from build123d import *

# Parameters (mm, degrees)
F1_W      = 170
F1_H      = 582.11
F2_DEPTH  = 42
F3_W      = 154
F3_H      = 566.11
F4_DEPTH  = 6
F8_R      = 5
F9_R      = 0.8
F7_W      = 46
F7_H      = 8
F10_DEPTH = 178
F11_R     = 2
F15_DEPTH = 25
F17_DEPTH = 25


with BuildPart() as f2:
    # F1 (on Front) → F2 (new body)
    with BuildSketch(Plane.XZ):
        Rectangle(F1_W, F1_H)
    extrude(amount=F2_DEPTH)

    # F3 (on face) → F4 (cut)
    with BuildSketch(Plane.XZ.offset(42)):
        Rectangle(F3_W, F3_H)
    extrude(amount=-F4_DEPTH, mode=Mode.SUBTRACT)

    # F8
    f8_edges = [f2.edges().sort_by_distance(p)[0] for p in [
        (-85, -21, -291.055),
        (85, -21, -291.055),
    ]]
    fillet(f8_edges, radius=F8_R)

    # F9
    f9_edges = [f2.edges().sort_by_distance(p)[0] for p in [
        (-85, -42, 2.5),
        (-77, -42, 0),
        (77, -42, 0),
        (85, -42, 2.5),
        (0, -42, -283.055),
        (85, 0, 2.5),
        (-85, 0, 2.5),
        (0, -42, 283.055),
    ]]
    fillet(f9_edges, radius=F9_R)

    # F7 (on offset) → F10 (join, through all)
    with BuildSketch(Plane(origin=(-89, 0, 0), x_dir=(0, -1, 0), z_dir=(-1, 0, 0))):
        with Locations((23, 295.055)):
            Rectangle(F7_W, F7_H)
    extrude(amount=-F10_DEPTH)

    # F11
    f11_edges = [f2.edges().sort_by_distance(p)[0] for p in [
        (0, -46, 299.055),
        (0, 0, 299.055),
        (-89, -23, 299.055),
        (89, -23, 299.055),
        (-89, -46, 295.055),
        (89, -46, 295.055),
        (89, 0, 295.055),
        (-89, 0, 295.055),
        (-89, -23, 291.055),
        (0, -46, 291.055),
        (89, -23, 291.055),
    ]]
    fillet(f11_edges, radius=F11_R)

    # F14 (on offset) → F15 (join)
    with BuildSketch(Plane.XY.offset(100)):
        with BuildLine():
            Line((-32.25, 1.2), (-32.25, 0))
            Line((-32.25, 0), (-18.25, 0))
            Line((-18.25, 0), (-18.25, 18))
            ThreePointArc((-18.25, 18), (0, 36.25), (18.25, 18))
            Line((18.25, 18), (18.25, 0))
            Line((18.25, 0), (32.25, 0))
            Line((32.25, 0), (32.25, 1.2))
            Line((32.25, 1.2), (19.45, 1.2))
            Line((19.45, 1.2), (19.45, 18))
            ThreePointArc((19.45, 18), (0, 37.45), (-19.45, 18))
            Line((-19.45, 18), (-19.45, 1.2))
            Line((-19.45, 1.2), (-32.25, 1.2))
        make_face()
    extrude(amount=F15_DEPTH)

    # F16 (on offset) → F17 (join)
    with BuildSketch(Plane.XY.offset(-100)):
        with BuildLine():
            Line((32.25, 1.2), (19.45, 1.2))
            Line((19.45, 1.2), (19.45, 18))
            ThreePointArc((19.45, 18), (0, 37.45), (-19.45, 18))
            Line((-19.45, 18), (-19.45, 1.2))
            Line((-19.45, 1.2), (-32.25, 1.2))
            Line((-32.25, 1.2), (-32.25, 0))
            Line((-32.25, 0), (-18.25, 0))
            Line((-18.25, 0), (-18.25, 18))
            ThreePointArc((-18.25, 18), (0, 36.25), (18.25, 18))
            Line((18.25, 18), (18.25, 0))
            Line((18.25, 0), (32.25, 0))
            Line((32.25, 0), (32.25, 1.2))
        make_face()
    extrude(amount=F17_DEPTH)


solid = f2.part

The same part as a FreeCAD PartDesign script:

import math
import FreeCAD as App
import Part
import Sketcher
from FreeCAD import Vector
Q = App.Units.Quantity


def edges_at(feature, points):
    """Names of the edges that pass closest to the given points."""
    edges = feature.Shape.Edges
    near = lambda p: min(range(len(edges)), key=lambda i: edges[i].distToShape(Part.Vertex(*p))[0])
    return sorted({f"Edge{near(p) + 1}" for p in points})

doc = App.newDocument("Part")
params = doc.addObject("Spreadsheet::Sheet", "Params")
for row, (alias, value) in enumerate([
    ("sketch1_width", "170 mm"),
    ("sketch1_height", "582.11 mm"),
    ("pad1_length", "42 mm"),
    ("sketch2_width", "154 mm"),
    ("sketch2_height", "566.11 mm"),
    ("pocket1_length", "6 mm"),
    ("fillet_radius", "5 mm"),
    ("fillet2_radius", "0.8 mm"),
    ("sketch3_width", "46 mm"),
    ("sketch3_height", "8 mm"),
    ("pad2_length", "178 mm"),
    ("fillet3_radius", "2 mm"),
    ("sketch4_width", "14 mm"),
    ("sketch4_height", "18 mm"),
    ("sketch4_radius", "18.25 mm"),
    ("sketch4_radius2", "19.45 mm"),
    ("sketch4_height2", "1.2 mm"),
    ("pad3_length", "25 mm"),
    ("sketch5_width", "14 mm"),
    ("sketch5_height", "18 mm"),
    ("sketch5_radius", "19.45 mm"),
    ("sketch5_radius2", "18.25 mm"),
    ("sketch5_height2", "16.8 mm"),
    ("pad4_length", "25 mm"),
], start=1):
    params.set(f"A{row}", alias)
    params.set(f"B{row}", "=" + value)
    params.setAlias(f"B{row}", alias)

body = doc.addObject("PartDesign::Body", "Body")

# Sketch on XZ plane
sketch1 = doc.addObject("Sketcher::SketchObject", "Sketch")
body.addObject(sketch1)
sketch1.AttachmentSupport = (doc.XZ_Plane, [""])
sketch1.MapMode = "FlatFace"
sketch1.addGeometry([
    Part.LineSegment(Vector(-85, 291, 0), Vector(-85, -291, 0)),
    Part.LineSegment(Vector(-85, -291, 0), Vector(85, -291, 0)),
    Part.LineSegment(Vector(85, -291, 0), Vector(85, 291, 0)),
    Part.LineSegment(Vector(85, 291, 0), Vector(-85, 291, 0)),
], False)
sketch1.addConstraint([
    Sketcher.Constraint("Coincident", 0, 2, 1, 1),
    Sketcher.Constraint("Coincident", 1, 2, 2, 1),
    Sketcher.Constraint("Coincident", 2, 2, 3, 1),
    Sketcher.Constraint("Coincident", 3, 2, 0, 1),
    Sketcher.Constraint("Vertical", 0),
    Sketcher.Constraint("Horizontal", 1),
    Sketcher.Constraint("Vertical", 2),
    Sketcher.Constraint("Horizontal", 3),
    Sketcher.Constraint("Symmetric", 0, 2, 2, 2, -1, 1),
    Sketcher.Constraint("DistanceX", 1, 1, 1, 2, Q("170 mm")),
    Sketcher.Constraint("DistanceY", 0, 2, 0, 1, Q("582.11 mm")),
])
sketch1.setExpression("Constraints[9]", "Params.sketch1_width")
sketch1.setExpression("Constraints[10]", "Params.sketch1_height")
pad1 = doc.addObject("PartDesign::Pad", "Pad")
body.addObject(pad1)
pad1.Profile = sketch1
pad1.setExpression("Length", "Params.pad1_length")

# Sketch on XZ plane
sketch2 = doc.addObject("Sketcher::SketchObject", "Sketch001")
body.addObject(sketch2)
sketch2.AttachmentSupport = (doc.XZ_Plane, [""])
sketch2.MapMode = "FlatFace"
sketch2.AttachmentOffset = App.Placement(Vector(0, 0, 42), App.Rotation())
sketch2.addGeometry([
    Part.LineSegment(Vector(-77, 283, 0), Vector(-77, -283, 0)),
    Part.LineSegment(Vector(-77, -283, 0), Vector(77, -283, 0)),
    Part.LineSegment(Vector(77, -283, 0), Vector(77, 283, 0)),
    Part.LineSegment(Vector(77, 283, 0), Vector(-77, 283, 0)),
], False)
sketch2.addConstraint([
    Sketcher.Constraint("Coincident", 0, 2, 1, 1),
    Sketcher.Constraint("Coincident", 1, 2, 2, 1),
    Sketcher.Constraint("Coincident", 2, 2, 3, 1),
    Sketcher.Constraint("Coincident", 3, 2, 0, 1),
    Sketcher.Constraint("Vertical", 0),
    Sketcher.Constraint("Horizontal", 1),
    Sketcher.Constraint("Vertical", 2),
    Sketcher.Constraint("Horizontal", 3),
    Sketcher.Constraint("Symmetric", 0, 2, 2, 2, -1, 1),
    Sketcher.Constraint("DistanceX", 1, 1, 1, 2, Q("154 mm")),
    Sketcher.Constraint("DistanceY", 0, 2, 0, 1, Q("566.11 mm")),
])
sketch2.setExpression("Constraints[9]", "Params.sketch2_width")
sketch2.setExpression("Constraints[10]", "Params.sketch2_height")
pocket1 = doc.addObject("PartDesign::Pocket", "Pocket")
body.addObject(pocket1)
pocket1.Profile = sketch2
pocket1.setExpression("Length", "Params.pocket1_length")
doc.recompute()

fillet = doc.addObject("PartDesign::Fillet", "Fillet")
body.addObject(fillet)
fillet.Base = (pocket1, edges_at(pocket1, [(-85, -21, -291.055), (85, -21, -291.055)]))
fillet.setExpression("Radius", "Params.fillet_radius")
doc.recompute()

fillet2 = doc.addObject("PartDesign::Fillet", "Fillet001")
body.addObject(fillet2)
fillet2.Base = (fillet, edges_at(fillet, [
    (-85, -42, 2.5),
    (-77, -42, 0),
    (77, -42, 0),
    (85, -42, 2.5),
    (0, -42, -283.055),
    (85, 0, 2.5),
    (-85, 0, 2.5),
    (0, -42, 283.055),
]))
fillet2.setExpression("Radius", "Params.fillet2_radius")

# Sketch on YZ plane
sketch3 = doc.addObject("Sketcher::SketchObject", "Sketch002")
body.addObject(sketch3)
sketch3.AttachmentSupport = (doc.YZ_Plane, [""])
sketch3.MapMode = "FlatFace"
sketch3.AttachmentOffset = App.Placement(Vector(0, 0, -89), App.Rotation())
sketch3.addGeometry([
    Part.LineSegment(Vector(0, 299, 0), Vector(0, 291, 0)),
    Part.LineSegment(Vector(0, 291, 0), Vector(-46, 291, 0)),
    Part.LineSegment(Vector(-46, 291, 0), Vector(-46, 299, 0)),
    Part.LineSegment(Vector(-46, 299, 0), Vector(0, 299, 0)),
], False)
sketch3.addConstraint([
    Sketcher.Constraint("Coincident", 0, 2, 1, 1),
    Sketcher.Constraint("Coincident", 1, 2, 2, 1),
    Sketcher.Constraint("Coincident", 2, 2, 3, 1),
    Sketcher.Constraint("Coincident", 3, 2, 0, 1),
    Sketcher.Constraint("Vertical", 0),
    Sketcher.Constraint("Horizontal", 1),
    Sketcher.Constraint("Vertical", 2),
    Sketcher.Constraint("Horizontal", 3),
    Sketcher.Constraint("PointOnObject", 0, 2, -2),
    Sketcher.Constraint("DistanceX", 1, 2, 1, 1, Q("46 mm")),
    Sketcher.Constraint("DistanceY", 0, 2, 0, 1, Q("8 mm")),
    Sketcher.Constraint("DistanceY", -1, 1, 0, 2, Q("291.055 mm")),
])
sketch3.setExpression("Constraints[9]", "Params.sketch3_width")
sketch3.setExpression("Constraints[10]", "Params.sketch3_height")
pad2 = doc.addObject("PartDesign::Pad", "Pad001")
body.addObject(pad2)
pad2.Profile = sketch3
pad2.setExpression("Length", "Params.pad2_length")
doc.recompute()

fillet3 = doc.addObject("PartDesign::Fillet", "Fillet002")
body.addObject(fillet3)
fillet3.Base = (pad2, edges_at(pad2, [
    (0, -46, 299.055),
    (0, 0, 299.055),
    (-89, -23, 299.055),
    (89, -23, 299.055),
    (-89, -46, 295.055),
    (89, -46, 295.055),
    (89, 0, 295.055),
    (-89, 0, 295.055),
    (-89, -23, 291.055),
    (0, -46, 291.055),
    (89, -23, 291.055),
]))
fillet3.setExpression("Radius", "Params.fillet3_radius")

# Sketch on XY plane
sketch4 = doc.addObject("Sketcher::SketchObject", "Sketch003")
body.addObject(sketch4)
sketch4.AttachmentSupport = (doc.XY_Plane, [""])
sketch4.MapMode = "FlatFace"
sketch4.AttachmentOffset = App.Placement(Vector(0, 0, 100), App.Rotation())
sketch4.addGeometry([
    Part.LineSegment(Vector(-32.2, 1.2, 0), Vector(-32.2, 0, 0)),  # 0
    Part.LineSegment(Vector(-32.2, 0, 0), Vector(-18.2, 0, 0)),  # 1
    Part.LineSegment(Vector(-18.2, 0, 0), Vector(-18.2, 18, 0)),  # 2
    Part.ArcOfCircle(Part.Circle(Vector(0, 18, 0), Vector(0, 0, 1), 18.2), math.radians(0), math.radians(180)),  # 3
    Part.LineSegment(Vector(18.2, 18, 0), Vector(18.2, 0, 0)),  # 4
    Part.LineSegment(Vector(18.2, 0, 0), Vector(32.2, 0, 0)),  # 5
    Part.LineSegment(Vector(32.2, 0, 0), Vector(32.2, 1.2, 0)),  # 6
    Part.LineSegment(Vector(32.2, 1.2, 0), Vector(19.4, 1.2, 0)),  # 7
    Part.LineSegment(Vector(19.4, 1.2, 0), Vector(19.4, 18, 0)),  # 8
    Part.ArcOfCircle(Part.Circle(Vector(0, 18, 0), Vector(0, 0, 1), 19.4), math.radians(0), math.radians(180)),  # 9
    Part.LineSegment(Vector(-19.4, 18, 0), Vector(-19.4, 1.2, 0)),  # 10
    Part.LineSegment(Vector(-19.4, 1.2, 0), Vector(-32.2, 1.2, 0)),  # 11
], False)
sketch4.addConstraint([
    Sketcher.Constraint("Coincident", 0, 2, 1, 1),
    Sketcher.Constraint("Coincident", 1, 2, 2, 1),
    Sketcher.Constraint("Tangent", 2, 2, 3, 2),
    Sketcher.Constraint("Tangent", 3, 1, 4, 1),
    Sketcher.Constraint("Coincident", 4, 2, 5, 1),
    Sketcher.Constraint("Coincident", 5, 2, 6, 1),
    Sketcher.Constraint("Coincident", 6, 2, 7, 1),
    Sketcher.Constraint("Coincident", 7, 2, 8, 1),
    Sketcher.Constraint("Tangent", 8, 2, 9, 1),
    Sketcher.Constraint("Tangent", 9, 2, 10, 1),
    Sketcher.Constraint("Coincident", 10, 2, 11, 1),
    Sketcher.Constraint("Coincident", 11, 2, 0, 1),
    Sketcher.Constraint("Vertical", 0),
    Sketcher.Constraint("Horizontal", 1),
    Sketcher.Constraint("Vertical", 2),
    Sketcher.Constraint("Vertical", 4),
    Sketcher.Constraint("Horizontal", 5),
    Sketcher.Constraint("Vertical", 6),
    Sketcher.Constraint("Horizontal", 7),
    Sketcher.Constraint("Vertical", 8),
    Sketcher.Constraint("Vertical", 10),
    Sketcher.Constraint("Horizontal", 11),
    Sketcher.Constraint("Coincident", 9, 3, 3, 3),
    Sketcher.Constraint("Symmetric", 1, 2, 4, 2, -1, 1),
    Sketcher.Constraint("Symmetric", 0, 2, 5, 2, -2),
    Sketcher.Constraint("Horizontal", 7, 2, 10, 2),
    Sketcher.Constraint("DistanceX", 1, 1, 1, 2, Q("14 mm")),
    Sketcher.Constraint("DistanceY", 2, 1, 2, 2, Q("18 mm")),
    Sketcher.Constraint("Radius", 3, Q("18.25 mm")),
    Sketcher.Constraint("Radius", 9, Q("19.45 mm")),
    Sketcher.Constraint("DistanceY", 0, 2, 0, 1, Q("1.2 mm")),
])
sketch4.setExpression("Constraints[26]", "Params.sketch4_width")
sketch4.setExpression("Constraints[27]", "Params.sketch4_height")
sketch4.setExpression("Constraints[28]", "Params.sketch4_radius")
sketch4.setExpression("Constraints[29]", "Params.sketch4_radius2")
sketch4.setExpression("Constraints[30]", "Params.sketch4_height2")
pad3 = doc.addObject("PartDesign::Pad", "Pad002")
body.addObject(pad3)
pad3.Profile = sketch4
pad3.setExpression("Length", "Params.pad3_length")

# Sketch on XY plane
sketch5 = doc.addObject("Sketcher::SketchObject", "Sketch004")
body.addObject(sketch5)
sketch5.AttachmentSupport = (doc.XY_Plane, [""])
sketch5.MapMode = "FlatFace"
sketch5.AttachmentOffset = App.Placement(Vector(0, 0, -100), App.Rotation())
sketch5.addGeometry([
    Part.LineSegment(Vector(32.2, 1.2, 0), Vector(19.4, 1.2, 0)),  # 0
    Part.LineSegment(Vector(19.4, 1.2, 0), Vector(19.4, 18, 0)),  # 1
    Part.ArcOfCircle(Part.Circle(Vector(0, 18, 0), Vector(0, 0, 1), 19.4), math.radians(0), math.radians(180)),  # 2
    Part.LineSegment(Vector(-19.4, 18, 0), Vector(-19.4, 1.2, 0)),  # 3
    Part.LineSegment(Vector(-19.4, 1.2, 0), Vector(-32.2, 1.2, 0)),  # 4
    Part.LineSegment(Vector(-32.2, 1.2, 0), Vector(-32.2, 0, 0)),  # 5
    Part.LineSegment(Vector(-32.2, 0, 0), Vector(-18.2, 0, 0)),  # 6
    Part.LineSegment(Vector(-18.2, 0, 0), Vector(-18.2, 18, 0)),  # 7
    Part.ArcOfCircle(Part.Circle(Vector(0, 18, 0), Vector(0, 0, 1), 18.2), math.radians(0), math.radians(180)),  # 8
    Part.LineSegment(Vector(18.2, 18, 0), Vector(18.2, 0, 0)),  # 9
    Part.LineSegment(Vector(18.2, 0, 0), Vector(32.2, 0, 0)),  # 10
    Part.LineSegment(Vector(32.2, 0, 0), Vector(32.2, 1.2, 0)),  # 11
], False)
sketch5.addConstraint([
    Sketcher.Constraint("Coincident", 0, 2, 1, 1),
    Sketcher.Constraint("Tangent", 1, 2, 2, 1),
    Sketcher.Constraint("Tangent", 2, 2, 3, 1),
    Sketcher.Constraint("Coincident", 3, 2, 4, 1),
    Sketcher.Constraint("Coincident", 4, 2, 5, 1),
    Sketcher.Constraint("Coincident", 5, 2, 6, 1),
    Sketcher.Constraint("Coincident", 6, 2, 7, 1),
    Sketcher.Constraint("Tangent", 7, 2, 8, 2),
    Sketcher.Constraint("Tangent", 8, 1, 9, 1),
    Sketcher.Constraint("Coincident", 9, 2, 10, 1),
    Sketcher.Constraint("Coincident", 10, 2, 11, 1),
    Sketcher.Constraint("Coincident", 11, 2, 0, 1),
    Sketcher.Constraint("Horizontal", 0),
    Sketcher.Constraint("Vertical", 1),
    Sketcher.Constraint("Vertical", 3),
    Sketcher.Constraint("Horizontal", 4),
    Sketcher.Constraint("Vertical", 5),
    Sketcher.Constraint("Horizontal", 6),
    Sketcher.Constraint("Vertical", 7),
    Sketcher.Constraint("Vertical", 9),
    Sketcher.Constraint("Horizontal", 10),
    Sketcher.Constraint("Vertical", 11),
    Sketcher.Constraint("Coincident", 8, 3, 2, 3),
    Sketcher.Constraint("Symmetric", 6, 2, 9, 2, -1, 1),
    Sketcher.Constraint("Symmetric", 5, 2, 10, 2, -2),
    Sketcher.Constraint("Horizontal", 0, 2, 3, 2),
    Sketcher.Constraint("DistanceX", 6, 1, 6, 2, Q("14 mm")),
    Sketcher.Constraint("DistanceY", 7, 1, 7, 2, Q("18 mm")),
    Sketcher.Constraint("Radius", 2, Q("19.45 mm")),
    Sketcher.Constraint("Radius", 8, Q("18.25 mm")),
    Sketcher.Constraint("DistanceY", 1, 1, 1, 2, Q("16.8 mm")),
])
sketch5.setExpression("Constraints[26]", "Params.sketch5_width")
sketch5.setExpression("Constraints[27]", "Params.sketch5_height")
sketch5.setExpression("Constraints[28]", "Params.sketch5_radius")
sketch5.setExpression("Constraints[29]", "Params.sketch5_radius2")
sketch5.setExpression("Constraints[30]", "Params.sketch5_height2")
pad4 = doc.addObject("PartDesign::Pad", "Pad003")
body.addObject(pad4)
pad4.Profile = sketch5
pad4.setExpression("Length", "Params.pad4_length")

doc.recompute()
